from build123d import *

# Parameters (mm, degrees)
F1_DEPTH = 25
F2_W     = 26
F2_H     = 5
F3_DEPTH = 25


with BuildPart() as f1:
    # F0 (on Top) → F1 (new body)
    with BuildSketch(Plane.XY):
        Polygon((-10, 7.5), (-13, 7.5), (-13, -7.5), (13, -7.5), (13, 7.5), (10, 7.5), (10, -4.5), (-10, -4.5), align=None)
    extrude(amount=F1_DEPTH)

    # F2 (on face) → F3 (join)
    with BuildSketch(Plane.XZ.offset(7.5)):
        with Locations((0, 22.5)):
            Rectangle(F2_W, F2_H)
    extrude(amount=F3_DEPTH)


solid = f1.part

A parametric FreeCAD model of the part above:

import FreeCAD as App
import Part
import Sketcher
Q = App.Units.Quantity

doc = App.newDocument("Part")
params = doc.addObject("Spreadsheet::Sheet", "Params")
for row, (alias, value) in enumerate([
    ("sketch1_width", "3 mm"),
    ("sketch1_width2", "26 mm"),
    ("sketch1_height", "15 mm"),
    ("sketch1_height2", "12 mm"),
    ("pad1_length", "25 mm"),
    ("sketch2_width", "26 mm"),
    ("sketch2_height", "5 mm"),
    ("pad2_length", "25 mm"),
], start=1):
    params.set(f"A{row}", alias)
    params.set(f"B{row}", "=" + value)
    params.setAlias(f"B{row}", alias)

body = doc.addObject("PartDesign::Body", "Body")

sketch1 = body.newObject("Sketcher::SketchObject", "Sketch")
sketch1.AttachmentSupport = (doc.getObject("XY_Plane"), [""])
sketch1.MapMode = "FlatFace"
sketch1.addGeometry(Part.LineSegment(App.Vector(-10, 7.5, 0), App.Vector(-13, 7.5, 0)), False)
sketch1.addGeometry(Part.LineSegment(App.Vector(-13, 7.5, 0), App.Vector(-13, -7.5, 0)), False)
sketch1.addGeometry(Part.LineSegment(App.Vector(-13, -7.5, 0), App.Vector(13, -7.5, 0)), False)
sketch1.addGeometry(Part.LineSegment(App.Vector(13, -7.5, 0), App.Vector(13, 7.5, 0)), False)
sketch1.addGeometry(Part.LineSegment(App.Vector(13, 7.5, 0), App.Vector(10, 7.5, 0)), False)
sketch1.addGeometry(Part.LineSegment(App.Vector(10, 7.5, 0), App.Vector(10, -4.5, 0)), False)
sketch1.addGeometry(Part.LineSegment(App.Vector(10, -4.5, 0), App.Vector(-10, -4.5, 0)), False)
sketch1.addGeometry(Part.LineSegment(App.Vector(-10, -4.5, 0), App.Vector(-10, 7.5, 0)), False)
sketch1.addConstraint(Sketcher.Constraint("Coincident", 0, 2, 1, 1))
sketch1.addConstraint(Sketcher.Constraint("Coincident", 1, 2, 2, 1))
sketch1.addConstraint(Sketcher.Constraint("Coincident", 2, 2, 3, 1))
sketch1.addConstraint(Sketcher.Constraint("Coincident", 3, 2, 4, 1))
sketch1.addConstraint(Sketcher.Constraint("Coincident", 4, 2, 5, 1))
sketch1.addConstraint(Sketcher.Constraint("Coincident", 5, 2, 6, 1))
sketch1.addConstraint(Sketcher.Constraint("Coincident", 6, 2, 7, 1))
sketch1.addConstraint(Sketcher.Constraint("Coincident", 7, 2, 0, 1))
sketch1.addConstraint(Sketcher.Constraint("Horizontal", 0))
sketch1.addConstraint(Sketcher.Constraint("Vertical", 1))
sketch1.addConstraint(Sketcher.Constraint("Horizontal", 2))
sketch1.addConstraint(Sketcher.Constraint("Vertical", 3))
sketch1.addConstraint(Sketcher.Constraint("Horizontal", 4))
sketch1.addConstraint(Sketcher.Constraint("Vertical", 5))
sketch1.addConstraint(Sketcher.Constraint("Horizontal", 6))
sketch1.addConstraint(Sketcher.Constraint("Vertical", 7))
sketch1.addConstraint(Sketcher.Constraint("Symmetric", 0, 2, 2, 2, -1, 1))
sketch1.addConstraint(Sketcher.Constraint("Symmetric", 4, 2, 7, 2, -2))
sketch1.addConstraint(Sketcher.Constraint("DistanceX", 0, 2, 0, 1, Q("3 mm")))
sketch1.addConstraint(Sketcher.Constraint("DistanceX", 2, 1, 2, 2, Q("26 mm")))
sketch1.addConstraint(Sketcher.Constraint("DistanceY", 1, 2, 1, 1, Q("15 mm")))
sketch1.addConstraint(Sketcher.Constraint("DistanceY", 5, 2, 5, 1, Q("12 mm")))
sketch1.setExpression("Constraints[18]", "Params.sketch1_width")
sketch1.setExpression("Constraints[19]", "Params.sketch1_width2")
sketch1.setExpression("Constraints[20]", "Params.sketch1_height")
sketch1.setExpression("Constraints[21]", "Params.sketch1_height2")
pad1 = body.newObject("PartDesign::Pad", "Pad")
pad1.Profile = sketch1
pad1.setExpression("Length", "Params.pad1_length")

sketch2 = body.newObject("Sketcher::SketchObject", "Sketch001")
sketch2.AttachmentSupport = (doc.getObject("XZ_Plane"), [""])
sketch2.MapMode = "FlatFace"
sketch2.AttachmentOffset = App.Placement(App.Vector(0, 0, 7.5), App.Rotation())
sketch2.addGeometry(Part.LineSegment(App.Vector(-13, 25, 0), App.Vector(-13, 20, 0)), False)
sketch2.addGeometry(Part.LineSegment(App.Vector(-13, 20, 0), App.Vector(13, 20, 0)), False)
sketch2.addGeometry(Part.LineSegment(App.Vector(13, 20, 0), App.Vector(13, 25, 0)), False)
sketch2.addGeometry(Part.LineSegment(App.Vector(13, 25, 0), App.Vector(-13, 25, 0)), False)
sketch2.addConstraint(Sketcher.Constraint("Coincident", 0, 2, 1, 1))
sketch2.addConstraint(Sketcher.Constraint("Coincident", 1, 2, 2, 1))
sketch2.addConstraint(Sketcher.Constraint("Coincident", 2, 2, 3, 1))
sketch2.addConstraint(Sketcher.Constraint("Coincident", 3, 2, 0, 1))
sketch2.addConstraint(Sketcher.Constraint("Vertical", 0))
sketch2.addConstraint(Sketcher.Constraint("Horizontal", 1))
sketch2.addConstraint(Sketcher.Constraint("Vertical", 2))
sketch2.addConstraint(Sketcher.Constraint("Horizontal", 3))
sketch2.addConstraint(Sketcher.Constraint("DistanceX", 1, 1, 1, 2, Q("26 mm")))
sketch2.addConstraint(Sketcher.Constraint("DistanceY", 0, 2, 0, 1, Q("5 mm")))
sketch2.addConstraint(Sketcher.Constraint("DistanceX", 0, 2, -1, 1, Q("13 mm")))
sketch2.addConstraint(Sketcher.Constraint("DistanceY", -1, 1, 0, 2, Q("20 mm")))
sketch2.setExpression("Constraints[8]", "Params.sketch2_width")
sketch2.setExpression("Constraints[9]", "Params.sketch2_height")
pad2 = body.newObject("PartDesign::Pad", "Pad001")
pad2.Profile = sketch2
pad2.setExpression("Length", "Params.pad2_length")

doc.recompute()
